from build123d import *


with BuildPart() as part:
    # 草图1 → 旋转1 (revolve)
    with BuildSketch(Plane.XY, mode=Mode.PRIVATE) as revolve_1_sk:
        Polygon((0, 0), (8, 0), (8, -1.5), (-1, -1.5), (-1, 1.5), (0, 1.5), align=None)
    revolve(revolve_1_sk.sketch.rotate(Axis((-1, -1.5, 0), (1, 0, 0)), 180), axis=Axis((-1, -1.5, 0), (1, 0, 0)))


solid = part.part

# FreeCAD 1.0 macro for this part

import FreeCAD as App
import Part
import Sketcher
Q = App.Units.Quantity


def add_polygon(sketch, points):
    """Adds a closed chain of lines whose ends are joined by coincident constraints."""
    first, n = sketch.GeometryCount, len(points)
    for a, b in zip(points, points[1:] + points[:1]):
        sketch.addGeometry(Part.LineSegment(App.Vector(*a, 0), App.Vector(*b, 0)), False)
    for i in range(n):
        sketch.addConstraint(Sketcher.Constraint("Coincident", first + i, 2, first + (i + 1) % n, 1))

doc = App.newDocument("Part")
params = doc.addObject("Spreadsheet::Sheet", "Params")
for row, (alias, value) in enumerate([
    ("sketch1_width", "8 mm"),
    ("sketch1_width2", "1 mm"),
    ("sketch1_height", "3 mm"),
    ("revolution_angle", "360 deg"),
], start=1):
    params.set(f"A{row}", alias)
    params.set(f"B{row}", "=" + value)
    params.setAlias(f"B{row}", alias)

body = doc.addObject("PartDesign::Body", "Body")

# Sketch on XY plane
sketch1 = body.newObject("Sketcher::SketchObject", "Sketch")
sketch1.AttachmentSupport = (doc.getObject("XY_Plane"), [""])
sketch1.MapMode = "FlatFace"
add_polygon(sketch1, [(8, 0), (0, 0), (0, 1.5), (-1, 1.5), (-1, -1.5), (8, -1.5)])  # lines 0-5
sketch1.addGeometry(Part.LineSegment(App.Vector(-1, -1.5, 0), App.Vector(8, -1.5, 0)), True)  # axis
sketch1.addConstraint([
    Sketcher.Constraint("Horizontal", 0),
    Sketcher.Constraint("Vertical", 1),
    Sketcher.Constraint("Horizontal", 2),
    Sketcher.Constraint("Vertical", 3),
    Sketcher.Constraint("Horizontal", 4),
    Sketcher.Constraint("Vertical", 5),
    Sketcher.Constraint("Horizontal", 6),
    Sketcher.Constraint("Coincident", 0, 2, -1, 1),
    Sketcher.Constraint("Coincident", 6, 1, 3, 2),
    Sketcher.Constraint("Vertical", 5, 2, 6, 2),
    Sketcher.Constraint("Equal", 1, 5),
    Sketcher.Constraint("DistanceX", 0, 2, 0, 1, Q("8 mm")),
    Sketcher.Constraint("DistanceX", 2, 2, 2, 1, Q("1 mm")),
    Sketcher.Constraint("DistanceY", 3, 2, 3, 1, Q("3 mm")),
])
sketch1.setExpression("Constraints[17]", "Params.sketch1_width")
sketch1.setExpression("Constraints[18]", "Params.sketch1_width2")
sketch1.setExpression("Constraints[19]", "Params.sketch1_height")
revolution = body.newObject("PartDesign::Revolution", "Revolution")
revolution.Profile = sketch1
revolution.ReferenceAxis = (sketch1, ["Axis0"])
revolution.setExpression("Angle", "Params.revolution_angle")

doc.recompute()
